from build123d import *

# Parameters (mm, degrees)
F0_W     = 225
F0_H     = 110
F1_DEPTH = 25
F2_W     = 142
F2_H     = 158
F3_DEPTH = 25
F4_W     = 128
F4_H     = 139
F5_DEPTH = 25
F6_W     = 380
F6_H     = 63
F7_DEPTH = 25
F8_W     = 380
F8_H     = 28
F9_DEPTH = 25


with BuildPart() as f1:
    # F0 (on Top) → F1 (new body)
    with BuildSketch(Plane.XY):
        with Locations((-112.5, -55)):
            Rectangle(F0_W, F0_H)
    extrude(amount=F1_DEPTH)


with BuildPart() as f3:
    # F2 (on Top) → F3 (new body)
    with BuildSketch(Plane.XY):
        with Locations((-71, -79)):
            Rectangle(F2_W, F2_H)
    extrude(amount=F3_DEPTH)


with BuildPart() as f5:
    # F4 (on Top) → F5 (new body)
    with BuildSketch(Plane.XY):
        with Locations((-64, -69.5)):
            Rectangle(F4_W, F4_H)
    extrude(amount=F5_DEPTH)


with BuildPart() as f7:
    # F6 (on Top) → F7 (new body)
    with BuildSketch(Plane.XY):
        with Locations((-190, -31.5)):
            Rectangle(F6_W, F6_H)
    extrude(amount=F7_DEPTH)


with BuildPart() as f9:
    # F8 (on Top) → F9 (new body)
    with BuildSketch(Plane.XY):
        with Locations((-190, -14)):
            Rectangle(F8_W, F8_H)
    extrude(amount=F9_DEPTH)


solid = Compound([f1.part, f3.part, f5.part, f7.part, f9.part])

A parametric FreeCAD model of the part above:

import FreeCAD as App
import Part
import Sketcher
from FreeCAD import Vector

doc = App.newDocument("Part")
body = doc.addObject("PartDesign::Body", "Body")

# Sketch on XY plane
sketch1 = doc.addObject("Sketcher::SketchObject", "Sketch")
body.addObject(sketch1)
sketch1.AttachmentSupport = (doc.XY_Plane, [""])
sketch1.MapMode = "FlatFace"
sketch1.addGeometry([
    Part.LineSegment(Vector(-225, 0, 0), Vector(-225, -110, 0)),
    Part.LineSegment(Vector(-225, -110, 0), Vector(0, -110, 0)),
    Part.LineSegment(Vector(0, -110, 0), Vector(0, 0, 0)),
    Part.LineSegment(Vector(0, 0, 0), Vector(-225, 0, 0)),
], False)
sketch1.addConstraint([
    Sketcher.Constraint("Coincident", 0, 2, 1, 1),
    Sketcher.Constraint("Coincident", 1, 2, 2, 1),
    Sketcher.Constraint("Coincident", 2, 2, 3, 1),
    Sketcher.Constraint("Coincident", 3, 2, 0, 1),
    Sketcher.Constraint("Vertical", 0),
    Sketcher.Constraint("Horizontal", 1),
    Sketcher.Constraint("Vertical", 2),
    Sketcher.Constraint("Horizontal", 3),
    Sketcher.Constraint("Coincident", 2, 2, -1, 1),
    Sketcher.Constraint("DistanceX", 1, 1, 1, 2, 225.0),
    Sketcher.Constraint("DistanceY", 0, 2, 0, 1, 110.0),
])
pad1 = doc.addObject("PartDesign::Pad", "Pad")
body.addObject(pad1)
pad1.Profile = sketch1
pad1.Length = 25
body2 = doc.addObject("PartDesign::Body", "Body001")

# Sketch on XY plane
sketch2 = doc.addObject("Sketcher::SketchObject", "Sketch001")
body2.addObject(sketch2)
sketch2.AttachmentSupport = (doc.getObject("XY_Plane001"), [""])
sketch2.MapMode = "FlatFace"
sketch2.addGeometry([
    Part.LineSegment(Vector(-142, 0, 0), Vector(-142, -158, 0)),
    Part.LineSegment(Vector(-142, -158, 0), Vector(0, -158, 0)),
    Part.LineSegment(Vector(0, -158, 0), Vector(0, 0, 0)),
    Part.LineSegment(Vector(0, 0, 0), Vector(-142, 0, 0)),
], False)
sketch2.addConstraint([
    Sketcher.Constraint("Coincident", 0, 2, 1, 1),
    Sketcher.Constraint("Coincident", 1, 2, 2, 1),
    Sketcher.Constraint("Coincident", 2, 2, 3, 1),
    Sketcher.Constraint("Coincident", 3, 2, 0, 1),
    Sketcher.Constraint("Vertical", 0),
    Sketcher.Constraint("Horizontal", 1),
    Sketcher.Constraint("Vertical", 2),
    Sketcher.Constraint("Horizontal", 3),
    Sketcher.Constraint("Coincident", 2, 2, -1, 1),
    Sketcher.Constraint("DistanceX", 1, 1, 1, 2, 142.0),
    Sketcher.Constraint("DistanceY", 0, 2, 0, 1, 158.0),
])
pad2 = doc.addObject("PartDesign::Pad", "Pad001")
body2.addObject(pad2)
pad2.Profile = sketch2
pad2.Length = 25
body3 = doc.addObject("PartDesign::Body", "Body002")

# Sketch on XY plane
sketch3 = doc.addObject("Sketcher::SketchObject", "Sketch002")
body3.addObject(sketch3)
sketch3.AttachmentSupport = (doc.getObject("XY_Plane002"), [""])
sketch3.MapMode = "FlatFace"
sketch3.addGeometry([
    Part.LineSegment(Vector(-128, 0, 0), Vector(-128, -139, 0)),
    Part.LineSegment(Vector(-128, -139, 0), Vector(0, -139, 0)),
    Part.LineSegment(Vector(0, -139, 0), Vector(0, 0, 0)),
    Part.LineSegment(Vector(0, 0, 0), Vector(-128, 0, 0)),
], False)
sketch3.addConstraint([
    Sketcher.Constraint("Coincident", 0, 2, 1, 1),
    Sketcher.Constraint("Coincident", 1, 2, 2, 1),
    Sketcher.Constraint("Coincident", 2, 2, 3, 1),
    Sketcher.Constraint("Coincident", 3, 2, 0, 1),
    Sketcher.Constraint("Vertical", 0),
    Sketcher.Constraint("Horizontal", 1),
    Sketcher.Constraint("Vertical", 2),
    Sketcher.Constraint("Horizontal", 3),
    Sketcher.Constraint("Coincident", 2, 2, -1, 1),
    Sketcher.Constraint("DistanceX", 1, 1, 1, 2, 128.0),
    Sketcher.Constraint("DistanceY", 0, 2, 0, 1, 139.0),
])
pad3 = doc.addObject("PartDesign::Pad", "Pad002")
body3.addObject(pad3)
pad3.Profile = sketch3
pad3.Length = 25
body4 = doc.addObject("PartDesign::Body", "Body003")

# Sketch on XY plane
sketch4 = doc.addObject("Sketcher::SketchObject", "Sketch003")
body4.addObject(sketch4)
sketch4.AttachmentSupport = (doc.getObject("XY_Plane003"), [""])
sketch4.MapMode = "FlatFace"
sketch4.addGeometry([
    Part.LineSegment(Vector(-380, 0, 0), Vector(-380, -63, 0)),
    Part.LineSegment(Vector(-380, -63, 0), Vector(0, -63, 0)),
    Part.LineSegment(Vector(0, -63, 0), Vector(0, 0, 0)),
    Part.LineSegment(Vector(0, 0, 0), Vector(-380, 0, 0)),
], False)
sketch4.addConstraint([
    Sketcher.Constraint("Coincident", 0, 2, 1, 1),
    Sketcher.Constraint("Coincident", 1, 2, 2, 1),
    Sketcher.Constraint("Coincident", 2, 2, 3, 1),
    Sketcher.Constraint("Coincident", 3, 2, 0, 1),
    Sketcher.Constraint("Vertical", 0),
    Sketcher.Constraint("Horizontal", 1),
    Sketcher.Constraint("Vertical", 2),
    Sketcher.Constraint("Horizontal", 3),
    Sketcher.Constraint("Coincident", 2, 2, -1, 1),
    Sketcher.Constraint("DistanceX", 1, 1, 1, 2, 380.0),
    Sketcher.Constraint("DistanceY", 0, 2, 0, 1, 63.0),
])
pad4 = doc.addObject("PartDesign::Pad", "Pad003")
body4.addObject(pad4)
pad4.Profile = sketch4
pad4.Length = 25
body5 = doc.addObject("PartDesign::Body", "Body004")

# Sketch on XY plane
sketch5 = doc.addObject("Sketcher::SketchObject", "Sketch004")
body5.addObject(sketch5)
sketch5.AttachmentSupport = (doc.getObject("XY_Plane004"), [""])
sketch5.MapMode = "FlatFace"
sketch5.addGeometry([
    Part.LineSegment(Vector(-380, 0, 0), Vector(-380, -28, 0)),
    Part.LineSegment(Vector(-380, -28, 0), Vector(0, -28, 0)),
    Part.LineSegment(Vector(0, -28, 0), Vector(0, 0, 0)),
    Part.LineSegment(Vector(0, 0, 0), Vector(-380, 0, 0)),
], False)
sketch5.addConstraint([
    Sketcher.Constraint("Coincident", 0, 2, 1, 1),
    Sketcher.Constraint("Coincident", 1, 2, 2, 1),
    Sketcher.Constraint("Coincident", 2, 2, 3, 1),
    Sketcher.Constraint("Coincident", 3, 2, 0, 1),
    Sketcher.Constraint("Vertical", 0),
    Sketcher.Constraint("Horizontal", 1),
    Sketcher.Constraint("Vertical", 2),
    Sketcher.Constraint("Horizontal", 3),
    Sketcher.Constraint("Coincident", 2, 2, -1, 1),
    Sketcher.Constraint("DistanceX", 1, 1, 1, 2, 380.0),
    Sketcher.Constraint("DistanceY", 0, 2, 0, 1, 28.0),
])
pad5 = doc.addObject("PartDesign::Pad", "Pad004")
body5.addObject(pad5)
pad5.Profile = sketch5
pad5.Length = 25

doc.recompute()
